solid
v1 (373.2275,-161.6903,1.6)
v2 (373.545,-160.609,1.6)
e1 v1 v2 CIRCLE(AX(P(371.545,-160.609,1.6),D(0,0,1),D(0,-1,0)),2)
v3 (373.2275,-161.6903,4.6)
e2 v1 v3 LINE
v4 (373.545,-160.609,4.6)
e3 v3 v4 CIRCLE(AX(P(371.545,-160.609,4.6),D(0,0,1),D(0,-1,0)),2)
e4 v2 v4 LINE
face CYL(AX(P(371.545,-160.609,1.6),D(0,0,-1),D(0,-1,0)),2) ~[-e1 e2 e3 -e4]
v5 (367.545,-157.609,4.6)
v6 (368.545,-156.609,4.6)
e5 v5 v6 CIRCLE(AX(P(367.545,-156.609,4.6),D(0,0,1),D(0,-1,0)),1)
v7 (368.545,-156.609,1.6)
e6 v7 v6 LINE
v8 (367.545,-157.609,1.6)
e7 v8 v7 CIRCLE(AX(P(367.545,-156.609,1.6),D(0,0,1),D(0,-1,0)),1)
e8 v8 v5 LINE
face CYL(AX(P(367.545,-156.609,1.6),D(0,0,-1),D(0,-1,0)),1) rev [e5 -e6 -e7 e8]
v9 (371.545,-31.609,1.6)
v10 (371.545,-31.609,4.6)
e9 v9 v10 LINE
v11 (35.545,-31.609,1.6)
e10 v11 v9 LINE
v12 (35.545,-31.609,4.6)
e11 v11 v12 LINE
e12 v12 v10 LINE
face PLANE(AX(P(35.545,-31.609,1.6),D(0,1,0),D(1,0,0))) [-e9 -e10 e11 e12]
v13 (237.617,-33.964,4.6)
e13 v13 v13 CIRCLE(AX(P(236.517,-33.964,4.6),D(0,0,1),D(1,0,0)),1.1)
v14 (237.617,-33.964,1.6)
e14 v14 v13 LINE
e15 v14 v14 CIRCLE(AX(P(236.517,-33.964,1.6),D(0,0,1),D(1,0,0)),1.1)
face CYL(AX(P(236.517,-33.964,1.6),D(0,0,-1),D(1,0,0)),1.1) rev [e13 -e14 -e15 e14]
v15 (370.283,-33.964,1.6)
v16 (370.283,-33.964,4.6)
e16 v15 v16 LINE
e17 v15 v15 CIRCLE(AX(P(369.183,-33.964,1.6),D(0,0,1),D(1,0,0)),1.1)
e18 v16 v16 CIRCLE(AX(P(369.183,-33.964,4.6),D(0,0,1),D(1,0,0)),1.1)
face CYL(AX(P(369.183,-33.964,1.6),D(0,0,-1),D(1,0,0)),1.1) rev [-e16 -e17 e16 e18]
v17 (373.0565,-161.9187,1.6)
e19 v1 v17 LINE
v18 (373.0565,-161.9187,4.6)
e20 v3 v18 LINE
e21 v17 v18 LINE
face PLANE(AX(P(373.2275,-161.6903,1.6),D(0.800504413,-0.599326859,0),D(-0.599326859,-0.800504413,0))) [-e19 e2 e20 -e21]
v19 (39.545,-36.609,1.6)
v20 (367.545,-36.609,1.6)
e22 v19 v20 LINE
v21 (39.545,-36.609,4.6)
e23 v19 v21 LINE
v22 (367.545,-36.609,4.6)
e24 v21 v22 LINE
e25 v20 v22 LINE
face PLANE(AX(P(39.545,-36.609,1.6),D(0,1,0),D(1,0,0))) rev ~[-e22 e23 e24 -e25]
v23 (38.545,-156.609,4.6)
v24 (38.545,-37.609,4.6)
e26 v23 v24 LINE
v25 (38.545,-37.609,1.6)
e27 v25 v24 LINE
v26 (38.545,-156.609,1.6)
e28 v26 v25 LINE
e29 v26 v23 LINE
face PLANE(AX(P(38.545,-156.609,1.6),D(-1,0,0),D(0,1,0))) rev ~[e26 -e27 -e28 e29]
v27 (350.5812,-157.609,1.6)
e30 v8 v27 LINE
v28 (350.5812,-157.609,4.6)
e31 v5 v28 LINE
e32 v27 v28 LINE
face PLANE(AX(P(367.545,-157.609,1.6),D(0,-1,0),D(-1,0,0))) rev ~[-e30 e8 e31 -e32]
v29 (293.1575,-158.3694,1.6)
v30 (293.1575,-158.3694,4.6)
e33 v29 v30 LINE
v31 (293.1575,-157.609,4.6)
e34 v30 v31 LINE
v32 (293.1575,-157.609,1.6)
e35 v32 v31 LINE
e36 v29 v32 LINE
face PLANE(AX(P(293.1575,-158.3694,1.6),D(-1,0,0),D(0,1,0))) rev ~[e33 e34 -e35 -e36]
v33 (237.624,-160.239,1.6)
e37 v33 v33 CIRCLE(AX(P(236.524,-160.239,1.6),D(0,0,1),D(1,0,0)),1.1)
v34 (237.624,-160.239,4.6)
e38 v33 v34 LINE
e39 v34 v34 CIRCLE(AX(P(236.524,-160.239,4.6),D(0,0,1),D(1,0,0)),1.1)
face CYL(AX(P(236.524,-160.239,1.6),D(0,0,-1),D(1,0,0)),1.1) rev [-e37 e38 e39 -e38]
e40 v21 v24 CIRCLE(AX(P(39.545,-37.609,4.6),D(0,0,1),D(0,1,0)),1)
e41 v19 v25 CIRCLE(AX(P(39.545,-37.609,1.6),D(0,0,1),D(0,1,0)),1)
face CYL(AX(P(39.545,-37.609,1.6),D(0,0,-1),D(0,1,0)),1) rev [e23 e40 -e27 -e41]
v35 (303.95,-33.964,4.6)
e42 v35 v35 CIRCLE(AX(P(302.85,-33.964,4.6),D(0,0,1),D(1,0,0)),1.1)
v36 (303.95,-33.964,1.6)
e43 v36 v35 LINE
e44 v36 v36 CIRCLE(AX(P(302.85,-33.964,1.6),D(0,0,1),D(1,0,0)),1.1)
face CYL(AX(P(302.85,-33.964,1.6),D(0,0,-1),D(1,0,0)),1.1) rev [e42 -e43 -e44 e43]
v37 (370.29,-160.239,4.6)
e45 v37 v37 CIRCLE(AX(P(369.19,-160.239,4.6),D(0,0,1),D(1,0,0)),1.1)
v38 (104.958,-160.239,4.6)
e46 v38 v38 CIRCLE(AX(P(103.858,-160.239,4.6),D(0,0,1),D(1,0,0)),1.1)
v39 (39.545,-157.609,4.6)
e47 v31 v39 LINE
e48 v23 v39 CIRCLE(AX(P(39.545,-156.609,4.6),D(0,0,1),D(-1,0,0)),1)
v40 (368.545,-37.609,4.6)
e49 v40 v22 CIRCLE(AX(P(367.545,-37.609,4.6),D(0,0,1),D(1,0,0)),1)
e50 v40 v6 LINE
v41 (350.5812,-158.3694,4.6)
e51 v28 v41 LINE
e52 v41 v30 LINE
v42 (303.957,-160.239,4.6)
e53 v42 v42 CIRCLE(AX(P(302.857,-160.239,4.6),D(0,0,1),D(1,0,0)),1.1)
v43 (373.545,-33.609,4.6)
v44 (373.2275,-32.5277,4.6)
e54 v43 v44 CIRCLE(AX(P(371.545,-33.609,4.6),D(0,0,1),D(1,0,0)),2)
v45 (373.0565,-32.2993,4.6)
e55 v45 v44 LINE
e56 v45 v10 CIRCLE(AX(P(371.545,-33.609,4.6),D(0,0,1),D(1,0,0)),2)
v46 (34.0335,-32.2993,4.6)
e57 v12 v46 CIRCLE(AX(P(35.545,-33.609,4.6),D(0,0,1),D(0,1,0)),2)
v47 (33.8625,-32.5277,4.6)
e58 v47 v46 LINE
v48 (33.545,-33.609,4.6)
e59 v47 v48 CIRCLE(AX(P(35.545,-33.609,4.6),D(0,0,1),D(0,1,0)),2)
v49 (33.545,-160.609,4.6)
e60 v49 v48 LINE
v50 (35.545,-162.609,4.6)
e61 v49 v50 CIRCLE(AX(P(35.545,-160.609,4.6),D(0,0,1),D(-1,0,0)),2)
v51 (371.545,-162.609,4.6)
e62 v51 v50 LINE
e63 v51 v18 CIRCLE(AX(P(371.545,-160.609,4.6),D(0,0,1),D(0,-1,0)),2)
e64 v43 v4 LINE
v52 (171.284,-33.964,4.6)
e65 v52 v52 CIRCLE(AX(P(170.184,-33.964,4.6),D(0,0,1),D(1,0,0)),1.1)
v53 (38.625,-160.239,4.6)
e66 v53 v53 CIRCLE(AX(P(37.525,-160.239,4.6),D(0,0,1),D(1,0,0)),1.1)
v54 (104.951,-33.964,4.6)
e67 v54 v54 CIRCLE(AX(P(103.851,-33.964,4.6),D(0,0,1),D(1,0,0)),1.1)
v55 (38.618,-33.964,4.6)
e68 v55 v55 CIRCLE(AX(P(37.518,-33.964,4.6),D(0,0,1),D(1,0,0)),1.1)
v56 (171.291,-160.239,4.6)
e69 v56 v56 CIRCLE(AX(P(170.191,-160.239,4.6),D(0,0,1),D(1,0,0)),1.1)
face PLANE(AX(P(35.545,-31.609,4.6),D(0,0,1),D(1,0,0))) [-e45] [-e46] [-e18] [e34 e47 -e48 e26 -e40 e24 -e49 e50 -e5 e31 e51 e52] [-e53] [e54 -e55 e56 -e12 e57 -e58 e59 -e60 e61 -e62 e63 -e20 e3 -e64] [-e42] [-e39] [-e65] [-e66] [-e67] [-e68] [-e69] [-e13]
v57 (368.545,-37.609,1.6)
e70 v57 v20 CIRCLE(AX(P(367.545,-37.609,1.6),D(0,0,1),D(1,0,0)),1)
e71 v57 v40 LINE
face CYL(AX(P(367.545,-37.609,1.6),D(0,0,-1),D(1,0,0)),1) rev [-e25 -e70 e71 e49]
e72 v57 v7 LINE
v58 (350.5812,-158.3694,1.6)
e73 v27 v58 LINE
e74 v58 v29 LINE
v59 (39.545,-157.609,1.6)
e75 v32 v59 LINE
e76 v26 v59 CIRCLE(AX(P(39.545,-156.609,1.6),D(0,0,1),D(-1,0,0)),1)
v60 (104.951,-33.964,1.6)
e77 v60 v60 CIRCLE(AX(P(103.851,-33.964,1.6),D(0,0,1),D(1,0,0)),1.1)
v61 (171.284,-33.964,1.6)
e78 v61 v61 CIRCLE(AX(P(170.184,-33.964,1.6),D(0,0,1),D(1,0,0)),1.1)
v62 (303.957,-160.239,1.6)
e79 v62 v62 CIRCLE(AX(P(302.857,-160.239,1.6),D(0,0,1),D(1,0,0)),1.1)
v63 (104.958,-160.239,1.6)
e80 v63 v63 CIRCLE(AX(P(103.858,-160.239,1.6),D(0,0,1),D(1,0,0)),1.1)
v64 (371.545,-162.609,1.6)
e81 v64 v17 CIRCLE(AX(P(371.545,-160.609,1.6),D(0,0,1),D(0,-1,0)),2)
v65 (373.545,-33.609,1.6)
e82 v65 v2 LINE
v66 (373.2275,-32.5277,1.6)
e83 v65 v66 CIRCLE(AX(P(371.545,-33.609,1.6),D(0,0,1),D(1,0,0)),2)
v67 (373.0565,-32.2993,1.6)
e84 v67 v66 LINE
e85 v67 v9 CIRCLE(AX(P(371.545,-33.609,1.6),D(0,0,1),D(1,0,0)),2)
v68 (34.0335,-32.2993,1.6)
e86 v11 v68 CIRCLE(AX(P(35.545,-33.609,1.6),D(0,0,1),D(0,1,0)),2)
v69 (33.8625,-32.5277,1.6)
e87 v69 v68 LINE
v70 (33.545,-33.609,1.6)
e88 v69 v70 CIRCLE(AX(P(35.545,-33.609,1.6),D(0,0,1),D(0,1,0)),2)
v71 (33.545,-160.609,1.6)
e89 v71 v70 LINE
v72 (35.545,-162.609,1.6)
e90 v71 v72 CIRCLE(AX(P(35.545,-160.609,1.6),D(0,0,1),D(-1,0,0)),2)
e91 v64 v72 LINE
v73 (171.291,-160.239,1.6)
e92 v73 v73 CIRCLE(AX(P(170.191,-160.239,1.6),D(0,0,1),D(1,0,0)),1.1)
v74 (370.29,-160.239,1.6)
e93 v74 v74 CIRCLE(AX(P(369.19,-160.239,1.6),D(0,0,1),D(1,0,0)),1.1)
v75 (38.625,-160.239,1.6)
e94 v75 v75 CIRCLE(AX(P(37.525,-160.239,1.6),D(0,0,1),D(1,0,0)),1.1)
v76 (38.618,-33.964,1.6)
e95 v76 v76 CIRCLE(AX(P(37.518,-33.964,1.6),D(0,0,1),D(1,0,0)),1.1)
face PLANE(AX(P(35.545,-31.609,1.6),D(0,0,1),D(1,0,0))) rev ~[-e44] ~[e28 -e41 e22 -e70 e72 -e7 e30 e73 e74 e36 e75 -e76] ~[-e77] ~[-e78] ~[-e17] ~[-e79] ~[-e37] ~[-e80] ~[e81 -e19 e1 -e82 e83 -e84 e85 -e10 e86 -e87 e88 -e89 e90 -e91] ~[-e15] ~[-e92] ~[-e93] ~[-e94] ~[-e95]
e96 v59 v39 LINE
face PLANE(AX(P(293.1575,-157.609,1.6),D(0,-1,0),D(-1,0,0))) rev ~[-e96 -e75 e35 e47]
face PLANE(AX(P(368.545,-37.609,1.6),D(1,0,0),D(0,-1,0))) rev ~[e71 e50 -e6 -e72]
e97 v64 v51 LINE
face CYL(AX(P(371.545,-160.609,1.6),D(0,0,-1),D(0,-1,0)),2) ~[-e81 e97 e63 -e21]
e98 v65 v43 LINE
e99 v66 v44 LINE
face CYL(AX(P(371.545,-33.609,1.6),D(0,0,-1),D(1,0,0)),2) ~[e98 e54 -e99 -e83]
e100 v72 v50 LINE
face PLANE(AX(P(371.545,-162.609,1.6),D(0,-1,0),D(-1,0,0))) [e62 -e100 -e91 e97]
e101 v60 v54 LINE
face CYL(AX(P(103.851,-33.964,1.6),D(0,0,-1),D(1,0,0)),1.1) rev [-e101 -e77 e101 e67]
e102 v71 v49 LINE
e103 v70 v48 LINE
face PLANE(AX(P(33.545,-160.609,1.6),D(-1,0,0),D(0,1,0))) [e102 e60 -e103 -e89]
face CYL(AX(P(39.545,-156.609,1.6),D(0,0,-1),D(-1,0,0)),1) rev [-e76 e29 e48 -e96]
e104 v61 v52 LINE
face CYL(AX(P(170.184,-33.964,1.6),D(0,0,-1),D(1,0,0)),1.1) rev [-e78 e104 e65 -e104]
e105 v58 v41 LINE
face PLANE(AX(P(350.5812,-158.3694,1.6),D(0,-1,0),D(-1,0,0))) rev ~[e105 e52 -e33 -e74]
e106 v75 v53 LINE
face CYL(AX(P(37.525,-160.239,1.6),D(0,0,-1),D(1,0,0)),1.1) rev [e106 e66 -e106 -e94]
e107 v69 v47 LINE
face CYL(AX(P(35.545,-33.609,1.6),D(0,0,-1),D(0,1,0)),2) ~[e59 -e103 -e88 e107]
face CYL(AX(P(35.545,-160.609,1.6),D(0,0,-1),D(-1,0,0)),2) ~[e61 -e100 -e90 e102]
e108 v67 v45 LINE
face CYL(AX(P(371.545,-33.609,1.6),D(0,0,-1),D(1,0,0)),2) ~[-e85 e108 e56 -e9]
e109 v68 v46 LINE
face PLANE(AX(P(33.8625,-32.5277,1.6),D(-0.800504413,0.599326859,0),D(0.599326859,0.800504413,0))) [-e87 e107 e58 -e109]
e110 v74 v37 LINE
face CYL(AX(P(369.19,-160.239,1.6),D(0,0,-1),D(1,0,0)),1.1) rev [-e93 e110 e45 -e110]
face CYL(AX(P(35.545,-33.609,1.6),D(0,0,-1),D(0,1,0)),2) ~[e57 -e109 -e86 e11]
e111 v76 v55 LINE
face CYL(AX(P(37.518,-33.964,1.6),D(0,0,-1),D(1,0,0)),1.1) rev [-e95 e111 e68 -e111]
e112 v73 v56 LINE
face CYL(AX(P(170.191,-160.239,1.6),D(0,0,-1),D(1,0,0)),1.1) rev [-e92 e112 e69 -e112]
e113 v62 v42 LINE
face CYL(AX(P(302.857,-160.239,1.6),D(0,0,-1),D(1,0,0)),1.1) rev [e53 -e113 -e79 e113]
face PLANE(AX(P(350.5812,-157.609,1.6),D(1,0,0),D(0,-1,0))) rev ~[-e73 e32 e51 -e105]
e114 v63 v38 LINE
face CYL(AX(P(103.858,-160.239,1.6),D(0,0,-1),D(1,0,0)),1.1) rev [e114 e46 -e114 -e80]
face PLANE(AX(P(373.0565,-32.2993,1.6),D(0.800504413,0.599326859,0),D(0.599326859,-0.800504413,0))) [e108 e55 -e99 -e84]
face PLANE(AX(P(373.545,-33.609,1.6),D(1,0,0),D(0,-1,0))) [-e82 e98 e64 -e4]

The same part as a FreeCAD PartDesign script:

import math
import FreeCAD as App
import Part
import Sketcher

doc = App.newDocument("Part")
body = doc.addObject("PartDesign::Body", "Body")

sketch1 = doc.addObject("Sketcher::SketchObject", "Sketch")
body.addObject(sketch1)
sketch1.AttachmentSupport = (doc.XY_Plane, [""])
sketch1.MapMode = "FlatFace"
sketch1.AttachmentOffset = App.Placement(App.Vector(0, 0, 1.6), App.Rotation())
sketch1.addGeometry([
    Part.LineSegment(App.Vector(371.55, -31.61, 0), App.Vector(35.55, -31.61, 0)),
    Part.ArcOfCircle(Part.Circle(App.Vector(35.55, -33.61, 0), App.Vector(0, 0, 1), 2), math.radians(90), math.radians(139)),
    Part.LineSegment(App.Vector(34.03, -32.3, 0), App.Vector(33.86, -32.53, 0)),
    Part.ArcOfCircle(Part.Circle(App.Vector(35.55, -33.61, 0), App.Vector(0, 0, 1), 2), math.radians(147), math.radians(180)),
    Part.LineSegment(App.Vector(33.55, -33.61, 0), App.Vector(33.55, -160.61, 0)),
    Part.ArcOfCircle(Part.Circle(App.Vector(35.55, -160.61, 0), App.Vector(0, 0, 1), 2), math.radians(180), math.radians(270)),
    Part.LineSegment(App.Vector(35.55, -162.61, 0), App.Vector(371.55, -162.61, 0)),
    Part.ArcOfCircle(Part.Circle(App.Vector(371.55, -160.61, 0), App.Vector(0, 0, 1), 2), math.radians(-90), math.radians(-41)),
    Part.LineSegment(App.Vector(373.06, -161.92, 0), App.Vector(373.23, -161.69, 0)),
    Part.ArcOfCircle(Part.Circle(App.Vector(371.55, -160.61, 0), App.Vector(0, 0, 1), 2), math.radians(-33), math.radians(0)),
    Part.LineSegment(App.Vector(373.55, -160.61, 0), App.Vector(373.55, -33.61, 0)),
    Part.ArcOfCircle(Part.Circle(App.Vector(371.55, -33.61, 0), App.Vector(0, 0, 1), 2), math.radians(0), math.radians(33)),
    Part.LineSegment(App.Vector(373.23, -32.53, 0), App.Vector(373.06, -32.3, 0)),
    Part.ArcOfCircle(Part.Circle(App.Vector(371.55, -33.61, 0), App.Vector(0, 0, 1), 2), math.radians(41), math.radians(90)),
    Part.Circle(App.Vector(37.52, -160.24, 0), App.Vector(0, 0, 1), 1.1),
    Part.Circle(App.Vector(103.86, -160.24, 0), App.Vector(0, 0, 1), 1.1),
    Part.Circle(App.Vector(170.19, -160.24, 0), App.Vector(0, 0, 1), 1.1),
    Part.Circle(App.Vector(236.52, -160.24, 0), App.Vector(0, 0, 1), 1.1),
    Part.Circle(App.Vector(302.86, -160.24, 0), App.Vector(0, 0, 1), 1.1),
    Part.Circle(App.Vector(369.19, -160.24, 0), App.Vector(0, 0, 1), 1.1),
    Part.ArcOfCircle(Part.Circle(App.Vector(39.55, -37.61, 0), App.Vector(0, 0, 1), 1), math.radians(90), math.radians(180)),
    Part.LineSegment(App.Vector(39.55, -36.61, 0), App.Vector(367.55, -36.61, 0)),
    Part.ArcOfCircle(Part.Circle(App.Vector(367.55, -37.61, 0), App.Vector(0, 0, 1), 1), math.radians(0), math.radians(90)),
    Part.LineSegment(App.Vector(368.55, -37.61, 0), App.Vector(368.55, -156.61, 0)),
    Part.ArcOfCircle(Part.Circle(App.Vector(367.55, -156.61, 0), App.Vector(0, 0, 1), 1), math.radians(-90), math.radians(0)),
    Part.LineSegment(App.Vector(367.55, -157.61, 0), App.Vector(350.58, -157.61, 0)),
    Part.LineSegment(App.Vector(350.58, -157.61, 0), App.Vector(350.58, -158.37, 0)),
    Part.LineSegment(App.Vector(350.58, -158.37, 0), App.Vector(293.16, -158.37, 0)),
    Part.LineSegment(App.Vector(293.16, -158.37, 0), App.Vector(293.16, -157.61, 0)),
    Part.LineSegment(App.Vector(293.16, -157.61, 0), App.Vector(39.55, -157.61, 0)),
    Part.ArcOfCircle(Part.Circle(App.Vector(39.55, -156.61, 0), App.Vector(0, 0, 1), 1), math.radians(180), math.radians(270)),
    Part.LineSegment(App.Vector(38.55, -156.61, 0), App.Vector(38.55, -37.61, 0)),
    Part.Circle(App.Vector(37.52, -33.96, 0), App.Vector(0, 0, 1), 1.1),
    Part.Circle(App.Vector(103.85, -33.96, 0), App.Vector(0, 0, 1), 1.1),
    Part.Circle(App.Vector(170.18, -33.96, 0), App.Vector(0, 0, 1), 1.1),
    Part.Circle(App.Vector(236.52, -33.96, 0), App.Vector(0, 0, 1), 1.1),
    Part.Circle(App.Vector(302.85, -33.96, 0), App.Vector(0, 0, 1), 1.1),
    Part.Circle(App.Vector(369.18, -33.96, 0), App.Vector(0, 0, 1), 1.1),
], False)
sketch1.addConstraint([
    Sketcher.Constraint("Tangent", 0, 2, 1, 1),
    Sketcher.Constraint("Coincident", 1, 2, 2, 1),
    Sketcher.Constraint("Coincident", 2, 2, 3, 1),
    Sketcher.Constraint("Tangent", 3, 2, 4, 1),
    Sketcher.Constraint("Tangent", 4, 2, 5, 1),
    Sketcher.Constraint("Tangent", 5, 2, 6, 1),
    Sketcher.Constraint("Tangent", 6, 2, 7, 1),
    Sketcher.Constraint("Coincident", 7, 2, 8, 1),
    Sketcher.Constraint("Coincident", 8, 2, 9, 1),
    Sketcher.Constraint("Tangent", 9, 2, 10, 1),
    Sketcher.Constraint("Tangent", 10, 2, 11, 1),
    Sketcher.Constraint("Coincident", 11, 2, 12, 1),
    Sketcher.Constraint("Coincident", 12, 2, 13, 1),
    Sketcher.Constraint("Tangent", 13, 2, 0, 1),
    Sketcher.Constraint("Tangent", 20, 1, 21, 1),
    Sketcher.Constraint("Tangent", 21, 2, 22, 2),
    Sketcher.Constraint("Tangent", 22, 1, 23, 1),
    Sketcher.Constraint("Tangent", 23, 2, 24, 2),
    Sketcher.Constraint("Tangent", 24, 1, 25, 1),
    Sketcher.Constraint("Coincident", 25, 2, 26, 1),
    Sketcher.Constraint("Coincident", 26, 2, 27, 1),
    Sketcher.Constraint("Coincident", 27, 2, 28, 1),
    Sketcher.Constraint("Coincident", 28, 2, 29, 1),
    Sketcher.Constraint("Tangent", 29, 2, 30, 2),
    Sketcher.Constraint("Tangent", 30, 1, 31, 1),
    Sketcher.Constraint("Tangent", 31, 2, 20, 2),
    Sketcher.Constraint("Horizontal", 0),
    Sketcher.Constraint("Vertical", 4),
    Sketcher.Constraint("Horizontal", 6),
    Sketcher.Constraint("Vertical", 10),
    Sketcher.Constraint("Horizontal", 21),
    Sketcher.Constraint("Vertical", 23),
    Sketcher.Constraint("Horizontal", 25),
    Sketcher.Constraint("Vertical", 26),
    Sketcher.Constraint("Horizontal", 27),
    Sketcher.Constraint("Vertical", 28),
    Sketcher.Constraint("Horizontal", 29),
    Sketcher.Constraint("Vertical", 31),
    Sketcher.Constraint("Coincident", 3, 3, 1, 3),
    Sketcher.Constraint("Coincident", 9, 3, 7, 3),
    Sketcher.Constraint("Coincident", 13, 3, 11, 3),
    Sketcher.Constraint("Equal", 1, 3),
    Sketcher.Constraint("Equal", 3, 5),
    Sketcher.Constraint("Equal", 5, 7),
    Sketcher.Constraint("Equal", 7, 9),
    Sketcher.Constraint("Equal", 9, 11),
    Sketcher.Constraint("Equal", 11, 13),
    Sketcher.Constraint("Equal", 14, 15),
    Sketcher.Constraint("Equal", 15, 16),
    Sketcher.Constraint("Equal", 16, 17),
    Sketcher.Constraint("Equal", 17, 18),
    Sketcher.Constraint("Equal", 18, 19),
    Sketcher.Constraint("Equal", 20, 22),
    Sketcher.Constraint("Equal", 22, 24),
    Sketcher.Constraint("Equal", 24, 30),
    Sketcher.Constraint("Equal", 19, 32),
    Sketcher.Constraint("Equal", 32, 33),
    Sketcher.Constraint("Equal", 33, 34),
    Sketcher.Constraint("Equal", 34, 35),
    Sketcher.Constraint("Equal", 35, 36),
    Sketcher.Constraint("Equal", 36, 37),
    Sketcher.Constraint("Parallel", 2, 8),
    Sketcher.Constraint("Horizontal", 14, 3, 15, 3),
    Sketcher.Constraint("Horizontal", 15, 3, 16, 3),
    Sketcher.Constraint("Horizontal", 16, 3, 17, 3),
    Sketcher.Constraint("Horizontal", 17, 3, 18, 3),
    Sketcher.Constraint("Horizontal", 18, 3, 19, 3),
    Sketcher.Constraint("Horizontal", 24, 3, 30, 3),
    Sketcher.Constraint("Horizontal", 32, 3, 33, 3),
    Sketcher.Constraint("Horizontal", 33, 3, 34, 3),
    Sketcher.Constraint("Horizontal", 34, 3, 35, 3),
    Sketcher.Constraint("Horizontal", 35, 3, 36, 3),
    Sketcher.Constraint("Horizontal", 36, 3, 37, 3),
    Sketcher.Constraint("Horizontal", 2, 2, 11, 2),
    Sketcher.Constraint("Horizontal", 1, 2, 12, 2),
    Sketcher.Constraint("Vertical", 8, 2, 11, 2),
    Sketcher.Constraint("Radius", 20, 1.0),
    Sketcher.Constraint("Radius", 1, 2.0),
    Sketcher.Constraint("DistanceY", 20, 1, 0, 2, 5.0),
    Sketcher.Constraint("DistanceX", 23, 2, 9, 2, 5.0),
    Sketcher.Constraint("DistanceY", 5, 2, 29, 2, 5.0),
    Sketcher.Constraint("DistanceX", 4, 2, 30, 1, 5.0),
    Sketcher.Constraint("Diameter", 14, 2.2),
    Sketcher.Constraint("DistanceX", 0, 2, 0, 1, 336.0),
    Sketcher.Constraint("DistanceY", 4, 2, 4, 1, 127.0),
    Sketcher.Constraint("DistanceX", -1, 1, 19, 3, 369.19),
    Sketcher.Constraint("DistanceX", -1, 1, 36, 3, 302.85),
    Sketcher.Constraint("DistanceX", 5, 3, 14, 3, 1.98),
    Sketcher.Constraint("DistanceY", 5, 3, 14, 3, 0.37),
    Sketcher.Constraint("DistanceX", 25, 2, 25, 1, 16.9638),
    Sketcher.Constraint("DistanceX", 27, 2, 27, 1, 57.4237),
    Sketcher.Constraint("DistanceY", 26, 2, 26, 1, 0.7604),
    Sketcher.Constraint("DistanceX", -1, 1, 1, 3, 35.545),
    Sketcher.Constraint("DistanceY", 1, 3, -1, 1, 33.609),
    Sketcher.Constraint("DistanceX", -1, 1, 15, 3, 103.858),
    Sketcher.Constraint("DistanceX", -1, 1, 16, 3, 170.191),
    Sketcher.Constraint("DistanceX", -1, 1, 17, 3, 236.524),
    Sketcher.Constraint("DistanceX", -1, 1, 18, 3, 302.857),
    Sketcher.Constraint("DistanceX", -1, 1, 32, 3, 37.518),
    Sketcher.Constraint("DistanceY", 32, 3, -1, 1, 33.964),
    Sketcher.Constraint("DistanceX", -1, 1, 33, 3, 103.851),
    Sketcher.Constraint("DistanceX", -1, 1, 34, 3, 170.184),
    Sketcher.Constraint("DistanceX", -1, 1, 35, 3, 236.517),
    Sketcher.Constraint("DistanceX", -1, 1, 37, 3, 369.183),
    Sketcher.Constraint("DistanceX", 2, 2, 1, 2, 0.171),
    Sketcher.Constraint("Distance", 2, 0.2853),
])
pad1 = doc.addObject("PartDesign::Pad", "Pad")
body.addObject(pad1)
pad1.Profile = sketch1
pad1.Length = 3

doc.recompute()
